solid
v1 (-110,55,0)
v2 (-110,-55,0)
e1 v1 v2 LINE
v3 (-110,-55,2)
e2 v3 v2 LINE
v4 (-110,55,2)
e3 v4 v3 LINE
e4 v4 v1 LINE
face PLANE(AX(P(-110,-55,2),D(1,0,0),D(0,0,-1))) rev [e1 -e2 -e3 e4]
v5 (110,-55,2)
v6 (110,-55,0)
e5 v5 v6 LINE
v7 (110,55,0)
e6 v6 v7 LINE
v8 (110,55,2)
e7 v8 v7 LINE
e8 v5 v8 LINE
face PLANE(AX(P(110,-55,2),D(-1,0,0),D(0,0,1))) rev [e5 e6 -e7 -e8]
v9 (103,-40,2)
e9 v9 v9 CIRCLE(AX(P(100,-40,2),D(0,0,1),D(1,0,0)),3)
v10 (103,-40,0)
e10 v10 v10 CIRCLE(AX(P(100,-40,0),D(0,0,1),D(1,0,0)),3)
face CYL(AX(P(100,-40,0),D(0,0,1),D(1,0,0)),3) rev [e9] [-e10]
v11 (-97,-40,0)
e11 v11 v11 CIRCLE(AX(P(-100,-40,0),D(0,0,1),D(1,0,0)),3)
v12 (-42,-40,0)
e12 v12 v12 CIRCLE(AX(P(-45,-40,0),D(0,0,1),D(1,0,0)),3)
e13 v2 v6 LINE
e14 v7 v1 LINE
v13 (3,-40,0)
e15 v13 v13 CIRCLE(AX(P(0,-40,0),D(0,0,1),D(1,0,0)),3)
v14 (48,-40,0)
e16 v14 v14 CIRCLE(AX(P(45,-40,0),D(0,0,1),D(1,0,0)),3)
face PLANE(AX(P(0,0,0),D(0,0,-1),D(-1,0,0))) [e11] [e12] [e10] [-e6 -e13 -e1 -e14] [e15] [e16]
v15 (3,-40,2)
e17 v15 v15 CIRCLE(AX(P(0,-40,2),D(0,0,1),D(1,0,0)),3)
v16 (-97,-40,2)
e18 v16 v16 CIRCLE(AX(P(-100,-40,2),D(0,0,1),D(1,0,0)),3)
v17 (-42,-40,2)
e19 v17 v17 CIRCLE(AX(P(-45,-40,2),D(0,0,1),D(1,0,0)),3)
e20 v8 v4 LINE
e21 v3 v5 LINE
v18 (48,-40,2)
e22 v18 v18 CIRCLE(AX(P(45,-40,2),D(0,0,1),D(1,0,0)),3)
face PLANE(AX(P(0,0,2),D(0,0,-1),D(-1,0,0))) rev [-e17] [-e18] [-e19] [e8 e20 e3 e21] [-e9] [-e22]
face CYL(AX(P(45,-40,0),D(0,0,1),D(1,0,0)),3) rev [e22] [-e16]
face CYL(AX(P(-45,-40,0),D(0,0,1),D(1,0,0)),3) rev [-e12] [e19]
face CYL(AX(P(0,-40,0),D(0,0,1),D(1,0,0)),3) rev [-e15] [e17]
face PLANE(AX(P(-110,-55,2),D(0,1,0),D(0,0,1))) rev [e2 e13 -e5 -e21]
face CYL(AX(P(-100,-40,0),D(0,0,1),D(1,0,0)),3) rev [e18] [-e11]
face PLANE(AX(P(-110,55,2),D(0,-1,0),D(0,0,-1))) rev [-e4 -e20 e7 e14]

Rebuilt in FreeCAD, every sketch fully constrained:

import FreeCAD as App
import Part
import Sketcher

V = App.Vector
Q = App.Units.Quantity

doc = App.newDocument("Part")
params = doc.addObject("Spreadsheet::Sheet", "Params")
for row, (alias, value) in enumerate([
    ("sketch1_width", "220 mm"),
    ("sketch1_height", "110 mm"),
    ("pad1_length", "2 mm"),
    ("sketch2_diameter", "6 mm"),
], start=1):
    params.set(f"A{row}", alias)
    params.set(f"B{row}", "=" + value)
    params.setAlias(f"B{row}", alias)

body = doc.addObject("PartDesign::Body", "Body")

# Sketch on XY plane
sketch1 = body.newObject("Sketcher::SketchObject", "Sketch")
sketch1.AttachmentSupport = (doc.getObject("XY_Plane"), [""])
sketch1.MapMode = "FlatFace"
sketch1.addGeometry(Part.LineSegment(V(-110, 55, 0), V(-110, -55, 0)), False)
sketch1.addGeometry(Part.LineSegment(V(-110, -55, 0), V(110, -55, 0)), False)
sketch1.addGeometry(Part.LineSegment(V(110, -55, 0), V(110, 55, 0)), False)
sketch1.addGeometry(Part.LineSegment(V(110, 55, 0), V(-110, 55, 0)), False)
sketch1.addConstraint(Sketcher.Constraint("Coincident", 0, 2, 1, 1))
sketch1.addConstraint(Sketcher.Constraint("Coincident", 1, 2, 2, 1))
sketch1.addConstraint(Sketcher.Constraint("Coincident", 2, 2, 3, 1))
sketch1.addConstraint(Sketcher.Constraint("Coincident", 3, 2, 0, 1))
sketch1.addConstraint(Sketcher.Constraint("Vertical", 0))
sketch1.addConstraint(Sketcher.Constraint("Horizontal", 1))
sketch1.addConstraint(Sketcher.Constraint("Vertical", 2))
sketch1.addConstraint(Sketcher.Constraint("Horizontal", 3))
sketch1.addConstraint(Sketcher.Constraint("Symmetric", 0, 2, 2, 2, -1, 1))
sketch1.addConstraint(Sketcher.Constraint("DistanceX", 1, 1, 1, 2, Q("220 mm")))
sketch1.addConstraint(Sketcher.Constraint("DistanceY", 0, 2, 0, 1, Q("110 mm")))
sketch1.setExpression("Constraints[9]", "Params.sketch1_width")
sketch1.setExpression("Constraints[10]", "Params.sketch1_height")
pad1 = body.newObject("PartDesign::Pad", "Pad")
pad1.Profile = sketch1
pad1.setExpression("Length", "Params.pad1_length")

# Sketch on XY plane
sketch2 = body.newObject("Sketcher::SketchObject", "Sketch001")
sketch2.AttachmentSupport = (doc.getObject("XY_Plane"), [""])
sketch2.MapMode = "FlatFace"
sketch2.AttachmentOffset = App.Placement(V(0, 0, 2), App.Rotation())
sketch2.addGeometry(Part.Circle(V(-100, -40, 0), V(0, 0, 1), 3), False)
sketch2.addGeometry(Part.Circle(V(0, -40, 0), V(0, 0, 1), 3), False)
sketch2.addGeometry(Part.Circle(V(-45, -40, 0), V(0, 0, 1), 3), False)
sketch2.addGeometry(Part.Circle(V(45, -40, 0), V(0, 0, 1), 3), False)
sketch2.addGeometry(Part.Circle(V(100, -40, 0), V(0, 0, 1), 3), False)
sketch2.addConstraint(Sketcher.Constraint("Equal", 0, 1))
sketch2.addConstraint(Sketcher.Constraint("Equal", 1, 2))
sketch2.addConstraint(Sketcher.Constraint("Equal", 2, 3))
sketch2.addConstraint(Sketcher.Constraint("Equal", 3, 4))
sketch2.addConstraint(Sketcher.Constraint("Symmetric", 2, 3, 3, 3, -2))
sketch2.addConstraint(Sketcher.Constraint("Symmetric", 0, 3, 4, 3, -2))
sketch2.addConstraint(Sketcher.Constraint("PointOnObject", 1, 3, -2))
sketch2.addConstraint(Sketcher.Constraint("Horizontal", 0, 3, 1, 3))
sketch2.addConstraint(Sketcher.Constraint("Horizontal", 1, 3, 2, 3))
sketch2.addConstraint(Sketcher.Constraint("Diameter", 0, Q("6 mm")))
sketch2.addConstraint(Sketcher.Constraint("DistanceX", 0, 3, -1, 1, Q("100 mm")))
sketch2.addConstraint(Sketcher.Constraint("DistanceY", 0, 3, -1, 1, Q("40 mm")))
sketch2.addConstraint(Sketcher.Constraint("DistanceX", 2, 3, -1, 1, Q("45 mm")))
sketch2.setExpression("Constraints[9]", "Params.sketch2_diameter")
pocket1 = body.newObject("PartDesign::Pocket", "Pocket")
pocket1.Profile = sketch2
pocket1.Type = "ThroughAll"

doc.recompute()
